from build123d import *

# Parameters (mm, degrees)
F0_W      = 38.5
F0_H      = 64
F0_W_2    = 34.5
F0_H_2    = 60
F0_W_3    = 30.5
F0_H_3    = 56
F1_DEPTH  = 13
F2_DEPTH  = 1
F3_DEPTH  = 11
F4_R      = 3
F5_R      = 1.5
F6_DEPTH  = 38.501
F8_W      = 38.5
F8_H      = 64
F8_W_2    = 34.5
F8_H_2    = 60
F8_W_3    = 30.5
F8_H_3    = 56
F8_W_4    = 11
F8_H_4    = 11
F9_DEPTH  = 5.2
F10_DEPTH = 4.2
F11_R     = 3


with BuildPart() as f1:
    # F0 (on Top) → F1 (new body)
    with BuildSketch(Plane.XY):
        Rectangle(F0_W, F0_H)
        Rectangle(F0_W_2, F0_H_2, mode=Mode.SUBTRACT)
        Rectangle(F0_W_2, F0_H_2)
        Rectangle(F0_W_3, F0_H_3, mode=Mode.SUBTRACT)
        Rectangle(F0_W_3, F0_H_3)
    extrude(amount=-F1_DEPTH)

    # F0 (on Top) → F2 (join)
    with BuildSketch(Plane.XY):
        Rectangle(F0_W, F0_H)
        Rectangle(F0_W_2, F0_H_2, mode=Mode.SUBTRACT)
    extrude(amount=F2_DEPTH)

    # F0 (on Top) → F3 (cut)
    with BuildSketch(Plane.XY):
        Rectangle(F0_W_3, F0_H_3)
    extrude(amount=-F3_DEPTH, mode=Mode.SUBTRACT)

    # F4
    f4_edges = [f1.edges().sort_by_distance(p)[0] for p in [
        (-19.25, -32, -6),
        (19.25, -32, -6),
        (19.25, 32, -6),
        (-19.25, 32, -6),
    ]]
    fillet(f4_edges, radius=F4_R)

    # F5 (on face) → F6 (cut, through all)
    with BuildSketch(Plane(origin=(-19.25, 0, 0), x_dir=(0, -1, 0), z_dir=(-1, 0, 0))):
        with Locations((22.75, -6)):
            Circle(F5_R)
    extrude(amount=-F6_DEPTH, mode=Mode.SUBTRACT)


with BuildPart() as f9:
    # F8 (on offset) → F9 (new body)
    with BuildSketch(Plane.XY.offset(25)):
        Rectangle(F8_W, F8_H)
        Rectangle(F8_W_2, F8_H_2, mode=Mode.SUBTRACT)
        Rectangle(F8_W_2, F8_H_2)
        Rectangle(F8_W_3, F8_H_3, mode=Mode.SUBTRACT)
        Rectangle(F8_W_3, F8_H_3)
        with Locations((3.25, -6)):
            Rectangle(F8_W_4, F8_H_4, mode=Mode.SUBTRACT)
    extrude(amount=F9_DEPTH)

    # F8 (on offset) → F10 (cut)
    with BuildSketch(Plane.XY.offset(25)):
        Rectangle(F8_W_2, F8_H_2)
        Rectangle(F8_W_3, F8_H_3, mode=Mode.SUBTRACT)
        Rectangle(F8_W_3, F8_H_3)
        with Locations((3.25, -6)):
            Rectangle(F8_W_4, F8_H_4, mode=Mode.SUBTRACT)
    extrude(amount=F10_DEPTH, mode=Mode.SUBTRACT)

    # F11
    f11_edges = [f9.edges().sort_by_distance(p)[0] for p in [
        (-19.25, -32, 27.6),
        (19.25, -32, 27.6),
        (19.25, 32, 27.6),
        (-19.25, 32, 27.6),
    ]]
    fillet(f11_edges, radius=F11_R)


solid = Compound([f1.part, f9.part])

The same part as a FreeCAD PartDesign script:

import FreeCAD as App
import Part
import Sketcher
from FreeCAD import Vector
Q = App.Units.Quantity


def edges_at(feature, points):
    """Names of the edges that pass closest to the given points."""
    edges = feature.Shape.Edges
    near = lambda p: min(range(len(edges)), key=lambda i: edges[i].distToShape(Part.Vertex(*p))[0])
    return sorted({f"Edge{near(p) + 1}" for p in points})


def add_polygon(sketch, points):
    """Adds a closed chain of lines whose ends are joined by coincident constraints."""
    first, n = sketch.GeometryCount, len(points)
    for a, b in zip(points, points[1:] + points[:1]):
        sketch.addGeometry(Part.LineSegment(App.Vector(*a, 0), App.Vector(*b, 0)), False)
    for i in range(n):
        sketch.addConstraint(Sketcher.Constraint("Coincident", first + i, 2, first + (i + 1) % n, 1))

doc = App.newDocument("Part")
body = doc.addObject("PartDesign::Body", "Body")

sketch1 = body.newObject("Sketcher::SketchObject", "Sketch")
sketch1.AttachmentSupport = (doc.getObject("XY_Plane"), [""])
sketch1.MapMode = "FlatFace"
add_polygon(sketch1, [(-19.25, 32), (-19.25, -32), (19.25, -32), (19.25, 32)])
sketch1.addConstraint(Sketcher.Constraint("Vertical", 0))
sketch1.addConstraint(Sketcher.Constraint("Horizontal", 1))
sketch1.addConstraint(Sketcher.Constraint("Vertical", 2))
sketch1.addConstraint(Sketcher.Constraint("Horizontal", 3))
sketch1.addConstraint(Sketcher.Constraint("Symmetric", 0, 2, 2, 2, -1, 1))
sketch1.addConstraint(Sketcher.Constraint("DistanceY", 0, 2, 0, 1, Q("64 mm")))
sketch1.addConstraint(Sketcher.Constraint("DistanceX", 1, 1, 1, 2, Q("38.5 mm")))
pad1 = body.newObject("PartDesign::Pad", "Pad")
pad1.Profile = sketch1
pad1.Length = 13
pad1.Reversed = True

sketch2 = body.newObject("Sketcher::SketchObject", "Sketch001")
sketch2.AttachmentSupport = (doc.getObject("XY_Plane"), [""])
sketch2.MapMode = "FlatFace"
add_polygon(sketch2, [(-19.25, 32), (-19.25, -32), (19.25, -32), (19.25, 32)])
add_polygon(sketch2, [(17.25, -30), (-17.25, -30), (-17.25, 30), (17.25, 30)])
sketch2.addConstraint(Sketcher.Constraint("Vertical", 0))
sketch2.addConstraint(Sketcher.Constraint("Horizontal", 1))
sketch2.addConstraint(Sketcher.Constraint("Vertical", 2))
sketch2.addConstraint(Sketcher.Constraint("Horizontal", 3))
sketch2.addConstraint(Sketcher.Constraint("Horizontal", 4))
sketch2.addConstraint(Sketcher.Constraint("Vertical", 5))
sketch2.addConstraint(Sketcher.Constraint("Horizontal", 6))
sketch2.addConstraint(Sketcher.Constraint("Vertical", 7))
sketch2.addConstraint(Sketcher.Constraint("Symmetric", 0, 2, 2, 2, -1, 1))
sketch2.addConstraint(Sketcher.Constraint("Symmetric", 4, 2, 6, 2, -1, 1))
sketch2.addConstraint(Sketcher.Constraint("DistanceY", 0, 2, 0, 1, Q("64 mm")))
sketch2.addConstraint(Sketcher.Constraint("DistanceY", 5, 1, 5, 2, Q("60 mm")))
sketch2.addConstraint(Sketcher.Constraint("DistanceX", 1, 1, 1, 2, Q("38.5 mm")))
sketch2.addConstraint(Sketcher.Constraint("DistanceX", 4, 2, 4, 1, Q("34.5 mm")))
pad2 = body.newObject("PartDesign::Pad", "Pad001")
pad2.Profile = sketch2
pad2.Length = 1

sketch3 = body.newObject("Sketcher::SketchObject", "Sketch002")
sketch3.AttachmentSupport = (doc.getObject("XY_Plane"), [""])
sketch3.MapMode = "FlatFace"
add_polygon(sketch3, [(-15.25, 28), (-15.25, -28), (15.25, -28), (15.25, 28)])
sketch3.addConstraint(Sketcher.Constraint("Vertical", 0))
sketch3.addConstraint(Sketcher.Constraint("Horizontal", 1))
sketch3.addConstraint(Sketcher.Constraint("Vertical", 2))
sketch3.addConstraint(Sketcher.Constraint("Horizontal", 3))
sketch3.addConstraint(Sketcher.Constraint("Symmetric", 0, 2, 2, 2, -1, 1))
sketch3.addConstraint(Sketcher.Constraint("DistanceY", 0, 2, 0, 1, Q("56 mm")))
sketch3.addConstraint(Sketcher.Constraint("DistanceX", 1, 1, 1, 2, Q("30.5 mm")))
pocket1 = body.newObject("PartDesign::Pocket", "Pocket")
pocket1.Profile = sketch3
pocket1.Length = 11
doc.recompute()

fillet = body.newObject("PartDesign::Fillet", "Fillet")
fillet.Base = (pocket1, edges_at(pocket1, [
    (-19.25, -32, -6),
    (19.25, -32, -6),
    (19.25, 32, -6),
    (-19.25, 32, -6),
]))
fillet.Radius = 3

sketch4 = body.newObject("Sketcher::SketchObject", "Sketch003")
sketch4.AttachmentSupport = (doc.getObject("YZ_Plane"), [""])
sketch4.MapMode = "FlatFace"
sketch4.AttachmentOffset = App.Placement(Vector(0, 0, -19.25), App.Rotation())
sketch4.addGeometry(Part.Circle(Vector(-22.75, -6, 0), Vector(0, 0, 1), 1.5), False)
sketch4.addConstraint(Sketcher.Constraint("Diameter", 0, Q("3 mm")))
sketch4.addConstraint(Sketcher.Constraint("DistanceY", 0, 3, -1, 1, Q("6 mm")))
sketch4.addConstraint(Sketcher.Constraint("DistanceX", 0, 3, -1, 1, Q("22.75 mm")))
pocket2 = body.newObject("PartDesign::Pocket", "Pocket001")
pocket2.Profile = sketch4
pocket2.Type = "ThroughAll"
pocket2.Reversed = True
body2 = doc.addObject("PartDesign::Body", "Body001")

sketch5 = body2.newObject("Sketcher::SketchObject", "Sketch004")
sketch5.AttachmentSupport = (doc.getObject("XY_Plane001"), [""])
sketch5.MapMode = "FlatFace"
sketch5.AttachmentOffset = App.Placement(Vector(0, 0, 25), App.Rotation())
add_polygon(sketch5, [(-19.25, 32), (-19.25, -32), (19.25, -32), (19.25, 32)])
add_polygon(sketch5, [(8.75, -11.5), (-2.25, -11.5), (-2.25, -0.5), (8.75, -0.5)])
sketch5.addConstraint(Sketcher.Constraint("Vertical", 0))
sketch5.addConstraint(Sketcher.Constraint("Horizontal", 1))
sketch5.addConstraint(Sketcher.Constraint("Vertical", 2))
sketch5.addConstraint(Sketcher.Constraint("Horizontal", 3))
sketch5.addConstraint(Sketcher.Constraint("Horizontal", 4))
sketch5.addConstraint(Sketcher.Constraint("Vertical", 5))
sketch5.addConstraint(Sketcher.Constraint("Horizontal", 6))
sketch5.addConstraint(Sketcher.Constraint("Vertical", 7))
sketch5.addConstraint(Sketcher.Constraint("Symmetric", 0, 2, 2, 2, -1, 1))
sketch5.addConstraint(Sketcher.Constraint("Equal", 6, 5))
sketch5.addConstraint(Sketcher.Constraint("DistanceX", 4, 2, 4, 1, Q("11 mm")))
sketch5.addConstraint(Sketcher.Constraint("DistanceY", 0, 2, 0, 1, Q("64 mm")))
sketch5.addConstraint(Sketcher.Constraint("DistanceX", 1, 1, 1, 2, Q("38.5 mm")))
sketch5.addConstraint(Sketcher.Constraint("DistanceX", 0, 2, 4, 2, Q("17 mm")))
sketch5.addConstraint(Sketcher.Constraint("DistanceY", 4, 2, -1, 1, Q("11.5 mm")))
pad3 = body2.newObject("PartDesign::Pad", "Pad002")
pad3.Profile = sketch5
pad3.Length = 5.2

sketch6 = body2.newObject("Sketcher::SketchObject", "Sketch005")
sketch6.AttachmentSupport = (doc.getObject("XY_Plane001"), [""])
sketch6.MapMode = "FlatFace"
sketch6.AttachmentOffset = App.Placement(Vector(0, 0, 25), App.Rotation())
add_polygon(sketch6, [(-17.25, 30), (-17.25, -30), (17.25, -30), (17.25, 30)])
add_polygon(sketch6, [(8.75, -11.5), (-2.25, -11.5), (-2.25, -0.5), (8.75, -0.5)])
sketch6.addConstraint(Sketcher.Constraint("Vertical", 0))
sketch6.addConstraint(Sketcher.Constraint("Horizontal", 1))
sketch6.addConstraint(Sketcher.Constraint("Vertical", 2))
sketch6.addConstraint(Sketcher.Constraint("Horizontal", 3))
sketch6.addConstraint(Sketcher.Constraint("Horizontal", 4))
sketch6.addConstraint(Sketcher.Constraint("Vertical", 5))
sketch6.addConstraint(Sketcher.Constraint("Horizontal", 6))
sketch6.addConstraint(Sketcher.Constraint("Vertical", 7))
sketch6.addConstraint(Sketcher.Constraint("Symmetric", 0, 2, 2, 2, -1, 1))
sketch6.addConstraint(Sketcher.Constraint("Equal", 6, 5))
sketch6.addConstraint(Sketcher.Constraint("DistanceX", 4, 2, 4, 1, Q("11 mm")))
sketch6.addConstraint(Sketcher.Constraint("DistanceY", 0, 2, 0, 1, Q("60 mm")))
sketch6.addConstraint(Sketcher.Constraint("DistanceX", 1, 1, 1, 2, Q("34.5 mm")))
sketch6.addConstraint(Sketcher.Constraint("DistanceX", 0, 2, 4, 2, Q("15 mm")))
sketch6.addConstraint(Sketcher.Constraint("DistanceY", 4, 2, -1, 1, Q("11.5 mm")))
pocket3 = body2.newObject("PartDesign::Pocket", "Pocket002")
pocket3.Profile = sketch6
pocket3.Length = 4.2
pocket3.Reversed = True
doc.recompute()

fillet2 = body2.newObject("PartDesign::Fillet", "Fillet001")
fillet2.Base = (pocket3, edges_at(pocket3, [
    (-19.25, -32, 27.6),
    (19.25, -32, 27.6),
    (19.25, 32, 27.6),
    (-19.25, 32, 27.6),
]))
fillet2.Radius = 3

doc.recompute()
